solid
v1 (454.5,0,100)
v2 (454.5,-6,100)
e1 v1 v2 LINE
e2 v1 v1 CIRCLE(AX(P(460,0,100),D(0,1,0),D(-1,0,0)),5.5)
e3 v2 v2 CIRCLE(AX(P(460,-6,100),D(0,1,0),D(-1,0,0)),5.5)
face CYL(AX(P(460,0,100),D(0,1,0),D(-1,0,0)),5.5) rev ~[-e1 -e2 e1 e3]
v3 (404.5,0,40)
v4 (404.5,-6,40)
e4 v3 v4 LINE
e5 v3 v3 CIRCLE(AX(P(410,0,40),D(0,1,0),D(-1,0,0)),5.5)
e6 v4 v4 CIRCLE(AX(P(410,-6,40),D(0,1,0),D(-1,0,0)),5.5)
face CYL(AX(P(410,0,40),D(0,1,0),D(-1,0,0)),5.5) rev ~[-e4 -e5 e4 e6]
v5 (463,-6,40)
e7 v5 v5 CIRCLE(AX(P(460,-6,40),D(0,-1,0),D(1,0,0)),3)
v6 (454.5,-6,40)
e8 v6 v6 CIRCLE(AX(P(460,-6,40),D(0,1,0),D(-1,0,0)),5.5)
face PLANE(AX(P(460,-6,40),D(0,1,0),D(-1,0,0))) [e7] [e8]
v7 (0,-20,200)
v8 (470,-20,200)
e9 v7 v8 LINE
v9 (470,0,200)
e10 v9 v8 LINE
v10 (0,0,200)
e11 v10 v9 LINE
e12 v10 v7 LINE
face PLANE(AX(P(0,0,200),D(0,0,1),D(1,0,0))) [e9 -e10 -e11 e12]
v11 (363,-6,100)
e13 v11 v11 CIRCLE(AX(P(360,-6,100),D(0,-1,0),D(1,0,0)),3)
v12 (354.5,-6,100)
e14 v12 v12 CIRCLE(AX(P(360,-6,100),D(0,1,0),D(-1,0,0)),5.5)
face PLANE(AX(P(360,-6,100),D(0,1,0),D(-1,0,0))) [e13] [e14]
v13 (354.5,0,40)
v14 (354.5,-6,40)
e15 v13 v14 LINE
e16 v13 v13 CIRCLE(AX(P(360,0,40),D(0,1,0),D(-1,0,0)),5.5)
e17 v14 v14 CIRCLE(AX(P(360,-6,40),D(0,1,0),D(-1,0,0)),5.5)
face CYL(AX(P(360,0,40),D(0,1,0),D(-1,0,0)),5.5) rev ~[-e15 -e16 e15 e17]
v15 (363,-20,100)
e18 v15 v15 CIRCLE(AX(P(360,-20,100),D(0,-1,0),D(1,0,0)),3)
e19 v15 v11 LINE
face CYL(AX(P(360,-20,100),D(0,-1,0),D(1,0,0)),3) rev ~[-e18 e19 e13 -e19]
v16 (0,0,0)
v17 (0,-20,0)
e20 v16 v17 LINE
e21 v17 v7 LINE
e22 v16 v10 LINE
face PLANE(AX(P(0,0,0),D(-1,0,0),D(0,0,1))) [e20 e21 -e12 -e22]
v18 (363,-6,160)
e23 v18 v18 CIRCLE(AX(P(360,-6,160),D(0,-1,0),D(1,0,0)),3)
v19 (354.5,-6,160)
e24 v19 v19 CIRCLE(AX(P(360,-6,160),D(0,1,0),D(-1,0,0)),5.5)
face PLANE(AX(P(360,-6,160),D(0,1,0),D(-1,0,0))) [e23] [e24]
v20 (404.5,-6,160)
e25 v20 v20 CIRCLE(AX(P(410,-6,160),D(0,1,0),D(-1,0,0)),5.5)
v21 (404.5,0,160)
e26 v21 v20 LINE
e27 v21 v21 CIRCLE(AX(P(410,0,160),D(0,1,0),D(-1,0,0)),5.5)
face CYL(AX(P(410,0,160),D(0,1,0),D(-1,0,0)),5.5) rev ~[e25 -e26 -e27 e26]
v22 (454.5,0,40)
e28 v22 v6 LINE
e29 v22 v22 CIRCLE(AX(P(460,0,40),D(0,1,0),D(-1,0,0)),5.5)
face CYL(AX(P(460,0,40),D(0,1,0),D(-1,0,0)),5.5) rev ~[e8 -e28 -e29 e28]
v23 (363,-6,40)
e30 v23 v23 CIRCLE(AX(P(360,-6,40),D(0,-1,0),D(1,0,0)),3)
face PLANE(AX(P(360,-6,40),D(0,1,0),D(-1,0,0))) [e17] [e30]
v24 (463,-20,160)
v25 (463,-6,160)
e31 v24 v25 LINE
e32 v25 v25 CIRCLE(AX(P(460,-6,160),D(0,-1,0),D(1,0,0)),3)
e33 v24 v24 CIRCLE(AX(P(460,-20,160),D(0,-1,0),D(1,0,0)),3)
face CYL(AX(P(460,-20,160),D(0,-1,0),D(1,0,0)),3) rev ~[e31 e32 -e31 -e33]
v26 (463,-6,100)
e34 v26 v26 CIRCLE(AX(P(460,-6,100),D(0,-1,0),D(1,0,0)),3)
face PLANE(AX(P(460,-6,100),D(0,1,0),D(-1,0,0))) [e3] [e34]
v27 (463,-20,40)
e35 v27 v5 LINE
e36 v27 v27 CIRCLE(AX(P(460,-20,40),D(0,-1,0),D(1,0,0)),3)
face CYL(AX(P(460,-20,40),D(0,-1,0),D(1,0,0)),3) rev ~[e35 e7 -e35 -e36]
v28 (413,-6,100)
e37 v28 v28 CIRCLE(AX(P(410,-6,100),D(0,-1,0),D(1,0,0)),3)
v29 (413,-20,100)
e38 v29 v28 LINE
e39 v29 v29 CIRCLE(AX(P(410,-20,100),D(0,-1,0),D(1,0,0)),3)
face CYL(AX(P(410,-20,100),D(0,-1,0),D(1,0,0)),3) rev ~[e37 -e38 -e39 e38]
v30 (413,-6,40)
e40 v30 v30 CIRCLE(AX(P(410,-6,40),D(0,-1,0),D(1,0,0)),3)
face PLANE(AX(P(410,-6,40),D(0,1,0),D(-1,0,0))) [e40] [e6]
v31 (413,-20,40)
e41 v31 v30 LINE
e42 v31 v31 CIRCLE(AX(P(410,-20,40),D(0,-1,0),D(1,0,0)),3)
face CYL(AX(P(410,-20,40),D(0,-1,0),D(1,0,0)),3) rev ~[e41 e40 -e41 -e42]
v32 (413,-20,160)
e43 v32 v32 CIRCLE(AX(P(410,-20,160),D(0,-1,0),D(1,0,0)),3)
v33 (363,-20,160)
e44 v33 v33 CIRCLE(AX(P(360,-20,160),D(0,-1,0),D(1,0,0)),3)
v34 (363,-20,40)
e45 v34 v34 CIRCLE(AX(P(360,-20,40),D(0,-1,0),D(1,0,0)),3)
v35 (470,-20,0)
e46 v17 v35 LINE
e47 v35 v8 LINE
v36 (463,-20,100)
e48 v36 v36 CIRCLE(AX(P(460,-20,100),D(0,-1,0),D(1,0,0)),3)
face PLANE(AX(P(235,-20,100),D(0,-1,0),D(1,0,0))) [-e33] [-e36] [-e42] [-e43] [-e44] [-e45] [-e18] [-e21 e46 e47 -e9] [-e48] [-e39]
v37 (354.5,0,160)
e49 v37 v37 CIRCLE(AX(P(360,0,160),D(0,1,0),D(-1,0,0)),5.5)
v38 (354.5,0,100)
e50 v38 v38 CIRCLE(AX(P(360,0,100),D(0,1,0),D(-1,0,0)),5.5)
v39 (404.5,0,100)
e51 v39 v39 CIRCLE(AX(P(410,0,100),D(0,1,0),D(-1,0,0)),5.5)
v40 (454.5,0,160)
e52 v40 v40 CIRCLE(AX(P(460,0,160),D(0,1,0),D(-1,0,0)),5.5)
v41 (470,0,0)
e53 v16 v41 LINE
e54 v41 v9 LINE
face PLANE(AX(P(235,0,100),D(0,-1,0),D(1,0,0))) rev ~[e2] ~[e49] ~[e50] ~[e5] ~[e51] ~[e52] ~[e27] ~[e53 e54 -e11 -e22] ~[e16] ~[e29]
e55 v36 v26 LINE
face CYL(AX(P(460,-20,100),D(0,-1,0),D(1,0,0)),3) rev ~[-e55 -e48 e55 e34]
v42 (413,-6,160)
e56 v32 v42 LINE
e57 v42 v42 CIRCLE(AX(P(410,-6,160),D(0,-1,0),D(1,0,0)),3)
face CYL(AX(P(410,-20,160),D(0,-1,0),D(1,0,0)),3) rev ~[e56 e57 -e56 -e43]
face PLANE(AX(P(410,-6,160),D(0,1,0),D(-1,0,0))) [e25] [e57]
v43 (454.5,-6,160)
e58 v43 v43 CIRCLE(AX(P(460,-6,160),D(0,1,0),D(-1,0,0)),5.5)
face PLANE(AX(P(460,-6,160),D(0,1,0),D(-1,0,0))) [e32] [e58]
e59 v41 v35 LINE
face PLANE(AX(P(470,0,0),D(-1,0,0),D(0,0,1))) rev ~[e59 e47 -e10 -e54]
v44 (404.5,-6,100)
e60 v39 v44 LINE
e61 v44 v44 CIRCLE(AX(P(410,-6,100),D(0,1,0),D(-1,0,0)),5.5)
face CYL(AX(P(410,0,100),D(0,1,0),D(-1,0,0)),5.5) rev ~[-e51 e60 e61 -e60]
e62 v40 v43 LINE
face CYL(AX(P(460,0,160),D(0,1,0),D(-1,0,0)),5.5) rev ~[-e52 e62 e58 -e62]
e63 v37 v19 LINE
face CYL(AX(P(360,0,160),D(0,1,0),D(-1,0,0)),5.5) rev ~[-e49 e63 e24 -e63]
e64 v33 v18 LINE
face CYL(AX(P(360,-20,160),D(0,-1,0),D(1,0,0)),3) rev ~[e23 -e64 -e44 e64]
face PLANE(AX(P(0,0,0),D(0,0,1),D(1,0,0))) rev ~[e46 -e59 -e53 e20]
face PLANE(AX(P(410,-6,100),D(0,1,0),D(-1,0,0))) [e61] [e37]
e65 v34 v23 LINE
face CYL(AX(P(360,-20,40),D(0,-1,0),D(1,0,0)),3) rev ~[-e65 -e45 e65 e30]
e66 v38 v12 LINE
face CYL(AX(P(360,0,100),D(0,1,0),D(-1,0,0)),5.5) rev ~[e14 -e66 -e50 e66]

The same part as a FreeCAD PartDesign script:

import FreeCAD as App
import Part
import Sketcher
Q = App.Units.Quantity


def add_polygon(sketch, points):
    """Adds a closed chain of lines whose ends are joined by coincident constraints."""
    first, n = sketch.GeometryCount, len(points)
    for a, b in zip(points, points[1:] + points[:1]):
        sketch.addGeometry(Part.LineSegment(App.Vector(*a, 0), App.Vector(*b, 0)), False)
    for i in range(n):
        sketch.addConstraint(Sketcher.Constraint("Coincident", first + i, 2, first + (i + 1) % n, 1))

doc = App.newDocument("Part")
body = doc.addObject("PartDesign::Body", "Body")

# Sketch on XZ plane
sketch1 = doc.addObject("Sketcher::SketchObject", "Sketch")
body.addObject(sketch1)
sketch1.AttachmentSupport = (doc.XZ_Plane, [""])
sketch1.MapMode = "FlatFace"
add_polygon(sketch1, [(0, 200), (0, 0), (470, 0), (470, 200)])  # lines 0-3
sketch1.addConstraint([
    Sketcher.Constraint("Vertical", 0),
    Sketcher.Constraint("Horizontal", 1),
    Sketcher.Constraint("Vertical", 2),
    Sketcher.Constraint("Horizontal", 3),
    Sketcher.Constraint("Coincident", 0, 2, -1, 1),
    Sketcher.Constraint("DistanceX", 1, 1, 1, 2, Q("470 mm")),
    Sketcher.Constraint("DistanceY", 0, 2, 0, 1, Q("200 mm")),
])
pad1 = doc.addObject("PartDesign::Pad", "Pad")
body.addObject(pad1)
pad1.Profile = sketch1
pad1.Length = 20

# Sketch on XZ plane
sketch2 = doc.addObject("Sketcher::SketchObject", "Sketch001")
body.addObject(sketch2)
sketch2.AttachmentSupport = (doc.XZ_Plane, [""])
sketch2.MapMode = "FlatFace"
sketch2.AttachmentOffset = App.Placement(App.Vector(0, 0, 20), App.Rotation())
sketch2.addGeometry([
    Part.Circle(App.Vector(360, 160, 0), App.Vector(0, 0, 1), 3),  # 0
    Part.Circle(App.Vector(360, 100, 0), App.Vector(0, 0, 1), 3),  # 1
    Part.Circle(App.Vector(360, 40, 0), App.Vector(0, 0, 1), 3),  # 2
    Part.Circle(App.Vector(410, 160, 0), App.Vector(0, 0, 1), 3),  # 3
    Part.Circle(App.Vector(410, 100, 0), App.Vector(0, 0, 1), 3),  # 4
    Part.Circle(App.Vector(410, 40, 0), App.Vector(0, 0, 1), 3),  # 5
    Part.Circle(App.Vector(460, 160, 0), App.Vector(0, 0, 1), 3),  # 6
    Part.Circle(App.Vector(460, 100, 0), App.Vector(0, 0, 1), 3),  # 7
    Part.Circle(App.Vector(460, 40, 0), App.Vector(0, 0, 1), 3),  # 8
], False)
sketch2.addConstraint([
    Sketcher.Constraint("Equal", 0, 1),
    Sketcher.Constraint("Equal", 1, 2),
    Sketcher.Constraint("Equal", 2, 3),
    Sketcher.Constraint("Equal", 3, 4),
    Sketcher.Constraint("Equal", 4, 5),
    Sketcher.Constraint("Equal", 5, 6),
    Sketcher.Constraint("Equal", 6, 7),
    Sketcher.Constraint("Equal", 7, 8),
    Sketcher.Constraint("Horizontal", 0, 3, 3, 3),
    Sketcher.Constraint("Horizontal", 1, 3, 4, 3),
    Sketcher.Constraint("Horizontal", 2, 3, 5, 3),
    Sketcher.Constraint("Horizontal", 3, 3, 6, 3),
    Sketcher.Constraint("Horizontal", 4, 3, 7, 3),
    Sketcher.Constraint("Horizontal", 5, 3, 8, 3),
    Sketcher.Constraint("Vertical", 0, 3, 1, 3),
    Sketcher.Constraint("Vertical", 1, 3, 2, 3),
    Sketcher.Constraint("Vertical", 3, 3, 4, 3),
    Sketcher.Constraint("Vertical", 4, 3, 5, 3),
    Sketcher.Constraint("Vertical", 6, 3, 7, 3),
    Sketcher.Constraint("Vertical", 7, 3, 8, 3),
    Sketcher.Constraint("Diameter", 0, Q("6 mm")),
    Sketcher.Constraint("DistanceX", -1, 1, 0, 3, Q("360 mm")),
    Sketcher.Constraint("DistanceY", -1, 1, 0, 3, Q("160 mm")),
    Sketcher.Constraint("DistanceY", -1, 1, 1, 3, Q("100 mm")),
    Sketcher.Constraint("DistanceY", -1, 1, 2, 3, Q("40 mm")),
    Sketcher.Constraint("DistanceX", -1, 1, 3, 3, Q("410 mm")),
    Sketcher.Constraint("DistanceX", -1, 1, 6, 3, Q("460 mm")),
])
pocket1 = doc.addObject("PartDesign::Pocket", "Pocket")
body.addObject(pocket1)
pocket1.Profile = sketch2
pocket1.Length = 20

# Sketch on XZ plane
sketch3 = doc.addObject("Sketcher::SketchObject", "Sketch002")
body.addObject(sketch3)
sketch3.AttachmentSupport = (doc.XZ_Plane, [""])
sketch3.MapMode = "FlatFace"
sketch3.addGeometry([
    Part.Circle(App.Vector(460, 160, 0), App.Vector(0, 0, 1), 6),  # 0
    Part.Circle(App.Vector(410, 160, 0), App.Vector(0, 0, 1), 6),  # 1
    Part.Circle(App.Vector(360, 160, 0), App.Vector(0, 0, 1), 6),  # 2
    Part.Circle(App.Vector(360, 100, 0), App.Vector(0, 0, 1), 6),  # 3
    Part.Circle(App.Vector(410, 100, 0), App.Vector(0, 0, 1), 6),  # 4
    Part.Circle(App.Vector(460, 100, 0), App.Vector(0, 0, 1), 6),  # 5
    Part.Circle(App.Vector(460, 40, 0), App.Vector(0, 0, 1), 6),  # 6
    Part.Circle(App.Vector(410, 40, 0), App.Vector(0, 0, 1), 6),  # 7
    Part.Circle(App.Vector(360, 40, 0), App.Vector(0, 0, 1), 6),  # 8
], False)
sketch3.addConstraint([
    Sketcher.Constraint("Equal", 0, 1),
    Sketcher.Constraint("Equal", 1, 2),
    Sketcher.Constraint("Equal", 2, 3),
    Sketcher.Constraint("Equal", 3, 4),
    Sketcher.Constraint("Equal", 4, 5),
    Sketcher.Constraint("Equal", 5, 6),
    Sketcher.Constraint("Equal", 6, 7),
    Sketcher.Constraint("Equal", 7, 8),
    Sketcher.Constraint("Horizontal", 0, 3, 1, 3),
    Sketcher.Constraint("Horizontal", 1, 3, 2, 3),
    Sketcher.Constraint("Horizontal", 3, 3, 4, 3),
    Sketcher.Constraint("Horizontal", 4, 3, 5, 3),
    Sketcher.Constraint("Horizontal", 6, 3, 7, 3),
    Sketcher.Constraint("Horizontal", 7, 3, 8, 3),
    Sketcher.Constraint("Vertical", 2, 3, 3, 3),
    Sketcher.Constraint("Vertical", 1, 3, 4, 3),
    Sketcher.Constraint("Vertical", 0, 3, 5, 3),
    Sketcher.Constraint("Vertical", 5, 3, 6, 3),
    Sketcher.Constraint("Vertical", 4, 3, 7, 3),
    Sketcher.Constraint("Vertical", 3, 3, 8, 3),
    Sketcher.Constraint("Diameter", 0, Q("11 mm")),
    Sketcher.Constraint("DistanceX", -1, 1, 0, 3, Q("460 mm")),
    Sketcher.Constraint("DistanceY", -1, 1, 0, 3, Q("160 mm")),
    Sketcher.Constraint("DistanceX", -1, 1, 1, 3, Q("410 mm")),
    Sketcher.Constraint("DistanceX", -1, 1, 2, 3, Q("360 mm")),
    Sketcher.Constraint("DistanceY", -1, 1, 3, 3, Q("100 mm")),
    Sketcher.Constraint("DistanceY", -1, 1, 6, 3, Q("40 mm")),
])
pocket2 = doc.addObject("PartDesign::Pocket", "Pocket001")
body.addObject(pocket2)
pocket2.Profile = sketch3
pocket2.Length = 6
pocket2.Reversed = True

doc.recompute()
